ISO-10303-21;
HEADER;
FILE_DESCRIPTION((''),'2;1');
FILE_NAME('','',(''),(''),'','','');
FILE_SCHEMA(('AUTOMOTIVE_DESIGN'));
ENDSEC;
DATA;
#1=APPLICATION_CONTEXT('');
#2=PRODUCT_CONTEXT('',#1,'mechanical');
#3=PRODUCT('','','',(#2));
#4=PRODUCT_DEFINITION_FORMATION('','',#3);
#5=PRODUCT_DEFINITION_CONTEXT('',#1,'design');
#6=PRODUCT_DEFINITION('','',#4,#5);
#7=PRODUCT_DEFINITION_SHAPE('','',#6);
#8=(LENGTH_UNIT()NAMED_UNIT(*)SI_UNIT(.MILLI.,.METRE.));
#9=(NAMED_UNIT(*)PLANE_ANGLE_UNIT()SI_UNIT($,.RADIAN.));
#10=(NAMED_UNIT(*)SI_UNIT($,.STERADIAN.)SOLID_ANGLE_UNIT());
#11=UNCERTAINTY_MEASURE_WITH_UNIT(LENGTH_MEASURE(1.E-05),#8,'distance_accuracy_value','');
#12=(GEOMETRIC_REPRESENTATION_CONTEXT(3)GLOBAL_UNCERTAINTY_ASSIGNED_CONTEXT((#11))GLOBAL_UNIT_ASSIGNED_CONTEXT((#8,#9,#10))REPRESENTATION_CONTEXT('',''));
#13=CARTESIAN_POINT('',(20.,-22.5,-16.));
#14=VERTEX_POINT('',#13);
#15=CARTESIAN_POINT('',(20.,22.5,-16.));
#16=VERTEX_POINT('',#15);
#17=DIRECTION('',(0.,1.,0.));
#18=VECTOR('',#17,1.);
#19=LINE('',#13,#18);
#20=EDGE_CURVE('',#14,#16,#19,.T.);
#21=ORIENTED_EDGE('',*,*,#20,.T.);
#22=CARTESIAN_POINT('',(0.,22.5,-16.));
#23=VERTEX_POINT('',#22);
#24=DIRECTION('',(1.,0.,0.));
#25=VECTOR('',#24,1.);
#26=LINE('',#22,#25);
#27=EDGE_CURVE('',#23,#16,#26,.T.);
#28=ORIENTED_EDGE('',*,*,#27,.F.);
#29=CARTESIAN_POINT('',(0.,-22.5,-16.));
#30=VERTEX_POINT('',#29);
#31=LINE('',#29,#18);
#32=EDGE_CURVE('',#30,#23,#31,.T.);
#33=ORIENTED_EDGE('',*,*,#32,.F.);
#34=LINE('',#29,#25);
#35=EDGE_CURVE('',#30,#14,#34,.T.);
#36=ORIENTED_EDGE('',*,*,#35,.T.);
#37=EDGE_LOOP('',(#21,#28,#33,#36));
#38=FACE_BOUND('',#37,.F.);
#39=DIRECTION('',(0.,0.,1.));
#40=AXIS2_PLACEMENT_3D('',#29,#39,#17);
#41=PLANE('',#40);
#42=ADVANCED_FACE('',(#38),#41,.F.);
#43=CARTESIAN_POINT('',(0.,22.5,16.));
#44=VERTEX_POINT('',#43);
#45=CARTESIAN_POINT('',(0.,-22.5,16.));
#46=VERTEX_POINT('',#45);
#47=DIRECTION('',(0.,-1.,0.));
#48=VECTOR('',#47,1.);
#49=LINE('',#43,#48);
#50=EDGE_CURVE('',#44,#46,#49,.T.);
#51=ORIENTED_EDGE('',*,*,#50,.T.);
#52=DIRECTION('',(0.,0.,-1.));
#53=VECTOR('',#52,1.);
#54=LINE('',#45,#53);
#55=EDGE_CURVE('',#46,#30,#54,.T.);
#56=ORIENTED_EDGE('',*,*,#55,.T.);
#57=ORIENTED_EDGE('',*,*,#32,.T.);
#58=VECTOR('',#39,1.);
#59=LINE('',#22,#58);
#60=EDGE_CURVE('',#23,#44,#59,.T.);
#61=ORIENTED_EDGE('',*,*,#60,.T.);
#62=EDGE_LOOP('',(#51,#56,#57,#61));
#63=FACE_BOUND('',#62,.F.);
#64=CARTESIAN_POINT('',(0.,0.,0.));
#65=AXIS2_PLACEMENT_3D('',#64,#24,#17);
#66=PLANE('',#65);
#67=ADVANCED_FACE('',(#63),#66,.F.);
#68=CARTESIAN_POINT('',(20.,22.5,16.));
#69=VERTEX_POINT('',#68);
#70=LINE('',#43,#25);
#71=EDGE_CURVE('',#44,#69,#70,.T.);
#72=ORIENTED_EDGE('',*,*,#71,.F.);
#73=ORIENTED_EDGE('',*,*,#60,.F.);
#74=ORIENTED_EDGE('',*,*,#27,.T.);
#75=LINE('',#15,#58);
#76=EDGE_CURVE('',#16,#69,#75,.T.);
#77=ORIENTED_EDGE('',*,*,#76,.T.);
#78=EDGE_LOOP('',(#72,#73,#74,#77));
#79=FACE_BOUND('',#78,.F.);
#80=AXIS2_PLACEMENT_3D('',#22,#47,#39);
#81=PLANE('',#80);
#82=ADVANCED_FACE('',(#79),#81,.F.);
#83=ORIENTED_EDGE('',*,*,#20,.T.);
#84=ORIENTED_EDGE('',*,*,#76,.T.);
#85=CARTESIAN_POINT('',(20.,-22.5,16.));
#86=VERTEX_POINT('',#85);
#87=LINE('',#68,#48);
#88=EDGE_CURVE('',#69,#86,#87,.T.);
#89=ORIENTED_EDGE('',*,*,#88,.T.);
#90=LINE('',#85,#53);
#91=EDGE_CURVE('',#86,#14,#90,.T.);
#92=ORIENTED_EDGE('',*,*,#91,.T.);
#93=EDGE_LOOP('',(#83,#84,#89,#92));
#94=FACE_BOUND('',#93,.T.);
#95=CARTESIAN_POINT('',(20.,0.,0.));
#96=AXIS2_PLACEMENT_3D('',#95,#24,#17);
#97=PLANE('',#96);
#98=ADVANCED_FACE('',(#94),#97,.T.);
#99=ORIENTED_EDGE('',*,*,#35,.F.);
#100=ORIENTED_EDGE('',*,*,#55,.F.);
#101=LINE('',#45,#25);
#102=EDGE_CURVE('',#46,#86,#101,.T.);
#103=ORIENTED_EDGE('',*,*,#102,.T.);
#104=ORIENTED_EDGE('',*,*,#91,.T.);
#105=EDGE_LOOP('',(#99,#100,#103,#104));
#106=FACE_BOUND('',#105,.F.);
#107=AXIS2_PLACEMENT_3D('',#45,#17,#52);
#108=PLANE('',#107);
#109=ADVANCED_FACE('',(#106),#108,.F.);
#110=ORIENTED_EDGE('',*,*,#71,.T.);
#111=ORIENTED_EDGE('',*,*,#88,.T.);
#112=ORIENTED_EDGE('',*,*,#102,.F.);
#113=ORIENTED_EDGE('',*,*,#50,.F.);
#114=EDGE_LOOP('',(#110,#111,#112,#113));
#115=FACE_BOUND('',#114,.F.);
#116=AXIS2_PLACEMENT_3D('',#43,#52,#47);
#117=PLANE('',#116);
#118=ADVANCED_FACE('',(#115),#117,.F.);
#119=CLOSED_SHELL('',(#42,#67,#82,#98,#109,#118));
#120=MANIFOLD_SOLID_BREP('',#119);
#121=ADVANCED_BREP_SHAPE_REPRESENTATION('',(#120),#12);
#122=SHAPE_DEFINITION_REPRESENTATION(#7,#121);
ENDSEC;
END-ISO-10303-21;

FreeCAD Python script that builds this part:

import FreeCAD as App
import Part
import Sketcher

doc = App.newDocument("Part")
body = doc.addObject("PartDesign::Body", "Body")

sketch1 = doc.addObject("Sketcher::SketchObject", "Sketch")
body.addObject(sketch1)
sketch1.AttachmentSupport = (doc.YZ_Plane, [""])
sketch1.MapMode = "FlatFace"
sketch1.addGeometry([
    Part.LineSegment(App.Vector(-22, 16, 0), App.Vector(-22, -16, 0)),
    Part.LineSegment(App.Vector(-22, -16, 0), App.Vector(22, -16, 0)),
    Part.LineSegment(App.Vector(22, -16, 0), App.Vector(22, 16, 0)),
    Part.LineSegment(App.Vector(22, 16, 0), App.Vector(-22, 16, 0)),
], False)
sketch1.addConstraint([
    Sketcher.Constraint("Coincident", 0, 2, 1, 1),
    Sketcher.Constraint("Coincident", 1, 2, 2, 1),
    Sketcher.Constraint("Coincident", 2, 2, 3, 1),
    Sketcher.Constraint("Coincident", 3, 2, 0, 1),
    Sketcher.Constraint("Vertical", 0),
    Sketcher.Constraint("Horizontal", 1),
    Sketcher.Constraint("Vertical", 2),
    Sketcher.Constraint("Horizontal", 3),
    Sketcher.Constraint("Symmetric", 0, 2, 2, 2, -1, 1),
    Sketcher.Constraint("DistanceX", 1, 1, 1, 2, 45.0),
    Sketcher.Constraint("DistanceY", 0, 2, 0, 1, 32.0),
])
pad1 = doc.addObject("PartDesign::Pad", "Pad")
body.addObject(pad1)
pad1.Profile = sketch1
pad1.Length = 20

doc.recompute()
